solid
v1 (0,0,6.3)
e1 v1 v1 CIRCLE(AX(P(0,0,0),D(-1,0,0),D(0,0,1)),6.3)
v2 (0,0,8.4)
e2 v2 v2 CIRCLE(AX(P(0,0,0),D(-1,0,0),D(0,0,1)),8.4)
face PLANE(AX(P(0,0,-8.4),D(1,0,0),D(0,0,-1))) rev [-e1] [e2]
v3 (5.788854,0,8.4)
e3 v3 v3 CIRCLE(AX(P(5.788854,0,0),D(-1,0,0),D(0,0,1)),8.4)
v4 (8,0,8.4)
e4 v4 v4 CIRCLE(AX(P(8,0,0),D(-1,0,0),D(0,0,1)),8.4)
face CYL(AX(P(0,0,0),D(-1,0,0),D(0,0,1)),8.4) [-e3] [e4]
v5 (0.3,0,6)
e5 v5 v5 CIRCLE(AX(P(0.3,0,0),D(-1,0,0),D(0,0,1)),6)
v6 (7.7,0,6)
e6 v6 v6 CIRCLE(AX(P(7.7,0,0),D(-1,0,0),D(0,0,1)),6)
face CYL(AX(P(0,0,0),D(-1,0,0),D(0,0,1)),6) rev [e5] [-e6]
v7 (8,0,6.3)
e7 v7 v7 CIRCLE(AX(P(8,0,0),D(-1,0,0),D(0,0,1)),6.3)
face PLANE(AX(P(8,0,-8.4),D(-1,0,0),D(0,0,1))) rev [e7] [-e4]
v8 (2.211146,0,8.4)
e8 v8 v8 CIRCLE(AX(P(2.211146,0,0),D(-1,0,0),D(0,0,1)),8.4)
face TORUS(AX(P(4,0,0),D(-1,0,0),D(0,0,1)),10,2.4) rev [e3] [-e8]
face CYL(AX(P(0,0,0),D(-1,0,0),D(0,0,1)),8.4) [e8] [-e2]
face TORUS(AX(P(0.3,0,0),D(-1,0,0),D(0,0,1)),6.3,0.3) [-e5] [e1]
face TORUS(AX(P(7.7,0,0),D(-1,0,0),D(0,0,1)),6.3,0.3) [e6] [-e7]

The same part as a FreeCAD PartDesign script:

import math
import FreeCAD as App
import Part
import Sketcher

V = App.Vector

doc = App.newDocument("Part")
params = doc.addObject("Spreadsheet::Sheet", "Params")
for row, (alias, value) in enumerate([
    ("sketch1_radius", "0.3 mm"),
    ("sketch1_radius2", "2.4 mm"),
    ("sketch1_width", "7.4 mm"),
    ("sketch1_height", "2.1 mm"),
    ("revolution_angle", "360 deg"),
], start=1):
    params.set(f"A{row}", alias)
    params.set(f"B{row}", "=" + value)
    params.setAlias(f"B{row}", alias)

body = doc.addObject("PartDesign::Body", "Body")

sketch1 = doc.addObject("Sketcher::SketchObject", "Sketch")
body.addObject(sketch1)
sketch1.AttachmentSupport = (doc.XZ_Plane, [""])
sketch1.MapMode = "FlatFace"
sketch1.addGeometry(Part.LineSegment(V(0, -8.4, 0), V(0, -6.3, 0)), False)
sketch1.addGeometry(Part.ArcOfCircle(Part.Circle(V(0.3, -6.3, 0), V(0, 0, 1), 0.3), math.radians(90), math.radians(180)), False)
sketch1.addGeometry(Part.LineSegment(V(0.3, -6, 0), V(7.7, -6, 0)), False)
sketch1.addGeometry(Part.ArcOfCircle(Part.Circle(V(7.7, -6.3, 0), V(0, 0, 1), 0.3), math.radians(0), math.radians(90)), False)
sketch1.addGeometry(Part.LineSegment(V(8, -6.3, 0), V(8, -8.4, 0)), False)
sketch1.addGeometry(Part.LineSegment(V(8, -8.4, 0), V(5.79, -8.4, 0)), False)
sketch1.addGeometry(Part.ArcOfCircle(Part.Circle(V(4, -10, 0), V(0, 0, 1), 2.4), math.radians(42), math.radians(138)), False)
sketch1.addGeometry(Part.LineSegment(V(2.21, -8.4, 0), V(0, -8.4, 0)), False)
sketch1.addConstraint(Sketcher.Constraint("Tangent", 0, 2, 1, 2))
sketch1.addConstraint(Sketcher.Constraint("Tangent", 1, 1, 2, 1))
sketch1.addConstraint(Sketcher.Constraint("Tangent", 2, 2, 3, 2))
sketch1.addConstraint(Sketcher.Constraint("Tangent", 3, 1, 4, 1))
sketch1.addConstraint(Sketcher.Constraint("Coincident", 4, 2, 5, 1))
sketch1.addConstraint(Sketcher.Constraint("Coincident", 5, 2, 6, 1))
sketch1.addConstraint(Sketcher.Constraint("Coincident", 6, 2, 7, 1))
sketch1.addConstraint(Sketcher.Constraint("Coincident", 7, 2, 0, 1))
sketch1.addConstraint(Sketcher.Constraint("Vertical", 0))
sketch1.addConstraint(Sketcher.Constraint("Horizontal", 2))
sketch1.addConstraint(Sketcher.Constraint("Vertical", 4))
sketch1.addConstraint(Sketcher.Constraint("Horizontal", 5))
sketch1.addConstraint(Sketcher.Constraint("Horizontal", 7))
sketch1.addConstraint(Sketcher.Constraint("Equal", 1, 3))
sketch1.addConstraint(Sketcher.Constraint("PointOnObject", 0, 2, -2))
sketch1.addConstraint(Sketcher.Constraint("Horizontal", 5, 2, 6, 2))
sketch1.addConstraint(Sketcher.Constraint("Equal", 5, 7))
sketch1.addConstraint(Sketcher.Constraint("Radius", 1, 0.3))
sketch1.addConstraint(Sketcher.Constraint("Radius", 6, 2.4))
sketch1.addConstraint(Sketcher.Constraint("DistanceX", 2, 1, 2, 2, 7.4))
sketch1.addConstraint(Sketcher.Constraint("DistanceY", 0, 1, 0, 2, 2.1))
sketch1.addConstraint(Sketcher.Constraint("DistanceY", 6, 3, -1, 1, 10.0))
sketch1.addConstraint(Sketcher.Constraint("DistanceY", 1, 1, -1, 1, 6.0))
sketch1.setExpression("Constraints[17]", "Params.sketch1_radius")
sketch1.setExpression("Constraints[18]", "Params.sketch1_radius2")
sketch1.setExpression("Constraints[19]", "Params.sketch1_width")
sketch1.setExpression("Constraints[20]", "Params.sketch1_height")
revolution = doc.addObject("PartDesign::Revolution", "Revolution")
body.addObject(revolution)
revolution.Profile = sketch1
revolution.ReferenceAxis = (sketch1, ["H_Axis"])
revolution.setExpression("Angle", "Params.revolution_angle")

doc.recompute()
